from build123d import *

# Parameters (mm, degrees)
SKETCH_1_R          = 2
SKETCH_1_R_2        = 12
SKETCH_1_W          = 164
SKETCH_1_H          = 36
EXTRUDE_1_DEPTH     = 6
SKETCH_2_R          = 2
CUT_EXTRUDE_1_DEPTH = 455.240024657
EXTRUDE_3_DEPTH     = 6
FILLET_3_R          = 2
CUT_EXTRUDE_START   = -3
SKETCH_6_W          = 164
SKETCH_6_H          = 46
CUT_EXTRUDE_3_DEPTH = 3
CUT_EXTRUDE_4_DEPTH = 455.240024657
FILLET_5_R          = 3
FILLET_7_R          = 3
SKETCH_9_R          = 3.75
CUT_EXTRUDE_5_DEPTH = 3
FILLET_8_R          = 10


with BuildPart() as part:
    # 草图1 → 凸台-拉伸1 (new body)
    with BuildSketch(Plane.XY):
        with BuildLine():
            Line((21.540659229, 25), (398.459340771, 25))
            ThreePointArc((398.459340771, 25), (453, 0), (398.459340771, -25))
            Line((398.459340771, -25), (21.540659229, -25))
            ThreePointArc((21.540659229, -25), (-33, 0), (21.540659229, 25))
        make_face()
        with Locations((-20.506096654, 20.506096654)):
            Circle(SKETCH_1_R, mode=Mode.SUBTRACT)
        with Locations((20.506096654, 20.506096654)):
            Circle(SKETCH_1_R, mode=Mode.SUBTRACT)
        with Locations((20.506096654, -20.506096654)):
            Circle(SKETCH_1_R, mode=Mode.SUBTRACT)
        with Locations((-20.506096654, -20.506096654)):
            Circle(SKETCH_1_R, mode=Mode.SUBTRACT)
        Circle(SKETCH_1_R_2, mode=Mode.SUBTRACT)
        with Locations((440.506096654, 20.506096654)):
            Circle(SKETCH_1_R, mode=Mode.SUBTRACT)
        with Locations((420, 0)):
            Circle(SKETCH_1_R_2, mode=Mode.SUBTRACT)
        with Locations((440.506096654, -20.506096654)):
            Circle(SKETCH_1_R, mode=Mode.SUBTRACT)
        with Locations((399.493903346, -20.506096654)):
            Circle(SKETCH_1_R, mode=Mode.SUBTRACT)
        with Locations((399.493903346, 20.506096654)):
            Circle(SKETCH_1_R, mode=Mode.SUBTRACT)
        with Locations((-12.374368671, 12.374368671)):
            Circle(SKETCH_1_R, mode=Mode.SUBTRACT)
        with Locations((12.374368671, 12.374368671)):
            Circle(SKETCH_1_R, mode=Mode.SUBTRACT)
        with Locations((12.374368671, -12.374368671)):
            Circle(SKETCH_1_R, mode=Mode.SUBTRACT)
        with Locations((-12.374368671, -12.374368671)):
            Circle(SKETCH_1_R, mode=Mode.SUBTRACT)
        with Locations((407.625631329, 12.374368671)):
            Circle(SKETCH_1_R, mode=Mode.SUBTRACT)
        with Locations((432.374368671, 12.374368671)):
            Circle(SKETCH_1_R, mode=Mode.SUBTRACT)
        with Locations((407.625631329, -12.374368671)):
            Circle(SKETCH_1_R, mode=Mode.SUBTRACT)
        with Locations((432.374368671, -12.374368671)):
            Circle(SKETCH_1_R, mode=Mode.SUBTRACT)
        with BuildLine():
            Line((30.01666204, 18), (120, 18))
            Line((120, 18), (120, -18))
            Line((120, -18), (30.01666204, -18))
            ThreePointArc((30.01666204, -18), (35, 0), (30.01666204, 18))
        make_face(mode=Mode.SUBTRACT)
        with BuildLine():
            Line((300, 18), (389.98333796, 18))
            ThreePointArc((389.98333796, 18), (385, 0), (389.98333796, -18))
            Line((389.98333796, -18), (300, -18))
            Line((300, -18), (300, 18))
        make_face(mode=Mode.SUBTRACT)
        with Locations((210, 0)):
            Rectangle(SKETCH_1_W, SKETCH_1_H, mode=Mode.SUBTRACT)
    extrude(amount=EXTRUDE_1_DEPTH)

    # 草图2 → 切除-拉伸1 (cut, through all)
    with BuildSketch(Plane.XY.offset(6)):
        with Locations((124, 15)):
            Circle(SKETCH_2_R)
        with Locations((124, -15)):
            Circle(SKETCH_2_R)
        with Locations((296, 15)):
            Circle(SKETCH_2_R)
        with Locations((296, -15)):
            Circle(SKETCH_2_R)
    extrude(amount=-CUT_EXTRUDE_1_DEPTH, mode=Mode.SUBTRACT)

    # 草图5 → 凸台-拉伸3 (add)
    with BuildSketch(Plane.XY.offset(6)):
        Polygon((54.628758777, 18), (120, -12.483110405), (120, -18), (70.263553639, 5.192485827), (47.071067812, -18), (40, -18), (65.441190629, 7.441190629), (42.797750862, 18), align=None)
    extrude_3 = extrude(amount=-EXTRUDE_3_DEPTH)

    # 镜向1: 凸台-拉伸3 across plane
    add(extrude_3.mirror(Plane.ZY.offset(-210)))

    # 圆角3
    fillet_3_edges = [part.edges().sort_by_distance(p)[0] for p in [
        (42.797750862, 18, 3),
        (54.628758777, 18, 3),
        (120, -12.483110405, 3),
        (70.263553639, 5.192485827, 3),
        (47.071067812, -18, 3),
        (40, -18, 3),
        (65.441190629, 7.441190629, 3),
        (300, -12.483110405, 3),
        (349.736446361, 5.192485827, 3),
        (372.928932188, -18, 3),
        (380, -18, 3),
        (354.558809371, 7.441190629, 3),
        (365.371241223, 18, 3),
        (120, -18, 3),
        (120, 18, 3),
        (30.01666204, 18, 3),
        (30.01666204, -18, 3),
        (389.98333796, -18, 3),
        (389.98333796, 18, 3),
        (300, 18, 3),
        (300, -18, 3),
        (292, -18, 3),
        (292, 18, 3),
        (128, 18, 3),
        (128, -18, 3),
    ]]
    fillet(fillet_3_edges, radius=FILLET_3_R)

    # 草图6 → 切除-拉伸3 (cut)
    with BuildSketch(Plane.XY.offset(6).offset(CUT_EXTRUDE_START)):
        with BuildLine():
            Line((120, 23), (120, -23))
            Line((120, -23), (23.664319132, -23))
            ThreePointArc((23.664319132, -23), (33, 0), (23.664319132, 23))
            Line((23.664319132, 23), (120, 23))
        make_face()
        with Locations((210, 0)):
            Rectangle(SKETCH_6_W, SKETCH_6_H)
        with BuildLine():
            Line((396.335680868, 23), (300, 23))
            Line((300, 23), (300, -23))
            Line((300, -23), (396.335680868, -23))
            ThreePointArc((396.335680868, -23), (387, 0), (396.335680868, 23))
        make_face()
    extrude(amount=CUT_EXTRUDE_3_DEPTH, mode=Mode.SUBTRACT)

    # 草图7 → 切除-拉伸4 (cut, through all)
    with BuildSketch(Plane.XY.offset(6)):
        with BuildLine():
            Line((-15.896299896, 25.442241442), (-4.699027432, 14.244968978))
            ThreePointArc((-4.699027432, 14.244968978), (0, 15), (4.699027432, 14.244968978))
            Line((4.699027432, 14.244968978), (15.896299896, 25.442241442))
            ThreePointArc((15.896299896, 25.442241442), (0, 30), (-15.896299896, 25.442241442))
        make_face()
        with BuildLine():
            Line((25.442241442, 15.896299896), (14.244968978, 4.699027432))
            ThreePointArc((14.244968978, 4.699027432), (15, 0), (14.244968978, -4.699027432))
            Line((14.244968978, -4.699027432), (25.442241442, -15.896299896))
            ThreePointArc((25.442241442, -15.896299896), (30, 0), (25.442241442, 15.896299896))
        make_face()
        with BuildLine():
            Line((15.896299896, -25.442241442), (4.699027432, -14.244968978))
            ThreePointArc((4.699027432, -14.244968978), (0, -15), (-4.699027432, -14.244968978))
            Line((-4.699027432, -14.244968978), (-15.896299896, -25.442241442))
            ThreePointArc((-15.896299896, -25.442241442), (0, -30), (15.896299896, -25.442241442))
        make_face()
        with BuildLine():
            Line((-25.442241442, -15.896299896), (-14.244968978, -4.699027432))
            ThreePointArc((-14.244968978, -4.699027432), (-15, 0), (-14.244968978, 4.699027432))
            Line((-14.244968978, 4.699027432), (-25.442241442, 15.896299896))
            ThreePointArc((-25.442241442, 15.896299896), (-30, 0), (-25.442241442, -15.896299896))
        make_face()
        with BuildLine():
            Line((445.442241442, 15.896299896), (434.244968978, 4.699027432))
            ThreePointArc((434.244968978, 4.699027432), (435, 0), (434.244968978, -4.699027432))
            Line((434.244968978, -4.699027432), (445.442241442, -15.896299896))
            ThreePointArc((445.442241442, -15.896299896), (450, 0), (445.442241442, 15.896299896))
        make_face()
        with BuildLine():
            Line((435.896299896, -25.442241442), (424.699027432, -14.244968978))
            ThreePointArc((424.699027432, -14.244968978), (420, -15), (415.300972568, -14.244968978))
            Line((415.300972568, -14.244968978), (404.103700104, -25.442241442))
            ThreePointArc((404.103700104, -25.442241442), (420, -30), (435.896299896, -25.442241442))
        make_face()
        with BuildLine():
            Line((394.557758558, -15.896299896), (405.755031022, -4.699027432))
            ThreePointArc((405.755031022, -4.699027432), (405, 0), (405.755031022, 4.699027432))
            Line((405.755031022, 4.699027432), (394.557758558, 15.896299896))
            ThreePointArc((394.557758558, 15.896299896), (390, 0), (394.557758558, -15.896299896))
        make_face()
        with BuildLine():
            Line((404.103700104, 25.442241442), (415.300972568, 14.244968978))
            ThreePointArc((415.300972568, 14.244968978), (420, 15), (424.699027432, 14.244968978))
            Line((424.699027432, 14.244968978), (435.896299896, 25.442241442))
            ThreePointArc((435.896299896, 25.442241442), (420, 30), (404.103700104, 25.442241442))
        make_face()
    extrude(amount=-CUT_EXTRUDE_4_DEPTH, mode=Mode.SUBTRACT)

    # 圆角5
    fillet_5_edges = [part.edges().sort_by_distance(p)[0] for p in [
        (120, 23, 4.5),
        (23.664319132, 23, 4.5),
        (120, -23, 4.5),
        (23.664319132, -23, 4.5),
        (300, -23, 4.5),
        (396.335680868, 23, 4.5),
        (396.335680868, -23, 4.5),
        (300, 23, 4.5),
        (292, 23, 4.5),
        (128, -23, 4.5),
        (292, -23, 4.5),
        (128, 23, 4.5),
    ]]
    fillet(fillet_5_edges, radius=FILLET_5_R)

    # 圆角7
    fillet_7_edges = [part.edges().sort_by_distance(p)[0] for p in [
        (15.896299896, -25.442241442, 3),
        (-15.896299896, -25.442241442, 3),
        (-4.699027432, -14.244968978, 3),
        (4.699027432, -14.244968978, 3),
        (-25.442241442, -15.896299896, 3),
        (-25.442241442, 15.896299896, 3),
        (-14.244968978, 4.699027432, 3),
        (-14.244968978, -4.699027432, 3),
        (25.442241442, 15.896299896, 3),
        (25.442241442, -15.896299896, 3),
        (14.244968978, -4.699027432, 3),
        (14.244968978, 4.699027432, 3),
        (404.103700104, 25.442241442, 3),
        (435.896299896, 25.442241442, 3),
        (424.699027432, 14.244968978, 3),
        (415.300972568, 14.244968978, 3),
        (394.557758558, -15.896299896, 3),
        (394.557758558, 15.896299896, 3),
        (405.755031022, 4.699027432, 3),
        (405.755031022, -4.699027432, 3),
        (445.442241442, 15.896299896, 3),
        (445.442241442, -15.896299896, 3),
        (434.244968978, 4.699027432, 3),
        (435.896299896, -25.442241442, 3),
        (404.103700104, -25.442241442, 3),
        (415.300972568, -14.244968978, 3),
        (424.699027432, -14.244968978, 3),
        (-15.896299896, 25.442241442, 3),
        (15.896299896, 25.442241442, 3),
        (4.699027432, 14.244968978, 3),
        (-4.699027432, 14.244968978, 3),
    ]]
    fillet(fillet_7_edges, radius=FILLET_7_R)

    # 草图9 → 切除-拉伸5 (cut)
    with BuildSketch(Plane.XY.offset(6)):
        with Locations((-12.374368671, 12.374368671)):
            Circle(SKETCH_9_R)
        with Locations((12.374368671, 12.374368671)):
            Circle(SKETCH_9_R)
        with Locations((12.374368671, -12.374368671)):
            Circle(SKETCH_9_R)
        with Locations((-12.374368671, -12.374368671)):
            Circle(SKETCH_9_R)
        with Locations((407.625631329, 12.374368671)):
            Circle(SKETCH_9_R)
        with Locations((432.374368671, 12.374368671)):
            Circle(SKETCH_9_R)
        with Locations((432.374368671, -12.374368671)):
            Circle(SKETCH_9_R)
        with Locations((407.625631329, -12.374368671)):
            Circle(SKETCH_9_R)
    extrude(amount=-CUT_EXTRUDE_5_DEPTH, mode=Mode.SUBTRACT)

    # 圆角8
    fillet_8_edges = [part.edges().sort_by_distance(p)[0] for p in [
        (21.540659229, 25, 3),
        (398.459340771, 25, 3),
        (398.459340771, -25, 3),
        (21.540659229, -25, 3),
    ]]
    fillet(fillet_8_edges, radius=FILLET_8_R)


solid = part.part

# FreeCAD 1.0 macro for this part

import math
import FreeCAD as App
import Part
import Sketcher
Q = App.Units.Quantity


def edges_at(feature, points):
    """Names of the edges that pass closest to the given points."""
    edges = feature.Shape.Edges
    near = lambda p: min(range(len(edges)), key=lambda i: edges[i].distToShape(Part.Vertex(*p))[0])
    return sorted({f"Edge{near(p) + 1}" for p in points})


def add_polygon(sketch, points):
    """Adds a closed chain of lines whose ends are joined by coincident constraints."""
    first, n = sketch.GeometryCount, len(points)
    for a, b in zip(points, points[1:] + points[:1]):
        sketch.addGeometry(Part.LineSegment(App.Vector(*a, 0), App.Vector(*b, 0)), False)
    for i in range(n):
        sketch.addConstraint(Sketcher.Constraint("Coincident", first + i, 2, first + (i + 1) % n, 1))

doc = App.newDocument("Part")
body = doc.addObject("PartDesign::Body", "Body")

sketch1 = doc.addObject("Sketcher::SketchObject", "Sketch")
body.addObject(sketch1)
sketch1.AttachmentSupport = (doc.XY_Plane, [""])
sketch1.MapMode = "FlatFace"
sketch1.addGeometry(Part.LineSegment(App.Vector(398.5, 25, 0), App.Vector(21.5, 25, 0)), False)
sketch1.addGeometry(Part.ArcOfCircle(Part.Circle(App.Vector(0, 0, 0), App.Vector(0, 0, 1), 33), math.radians(49), math.radians(311)), False)
sketch1.addGeometry(Part.LineSegment(App.Vector(21.5, -25, 0), App.Vector(398.5, -25, 0)), False)
sketch1.addGeometry(Part.ArcOfCircle(Part.Circle(App.Vector(420, 0, 0), App.Vector(0, 0, 1), 33), math.radians(-131), math.radians(131)), False)
sketch1.addGeometry(Part.Circle(App.Vector(440.5, -20.5, 0), App.Vector(0, 0, 1), 2), False)
sketch1.addGeometry(Part.Circle(App.Vector(399.5, -20.5, 0), App.Vector(0, 0, 1), 2), False)
sketch1.addGeometry(Part.Circle(App.Vector(432.4, -12.4, 0), App.Vector(0, 0, 1), 2), False)
sketch1.addGeometry(Part.Circle(App.Vector(407.6, -12.4, 0), App.Vector(0, 0, 1), 2), False)
sketch1.addGeometry(Part.Circle(App.Vector(420, 0, 0), App.Vector(0, 0, 1), 12), False)
sketch1.addGeometry(Part.LineSegment(App.Vector(300, 18, 0), App.Vector(390, 18, 0)), False)
sketch1.addGeometry(Part.ArcOfCircle(Part.Circle(App.Vector(420, 0, 0), App.Vector(0, 0, 1), 35), math.radians(149), math.radians(211)), False)
sketch1.addGeometry(Part.LineSegment(App.Vector(390, -18, 0), App.Vector(300, -18, 0)), False)
sketch1.addGeometry(Part.LineSegment(App.Vector(300, -18, 0), App.Vector(300, 18, 0)), False)
sketch1.addGeometry(Part.Circle(App.Vector(20.5, -20.5, 0), App.Vector(0, 0, 1), 2), False)
sketch1.addGeometry(Part.Circle(App.Vector(-20.5, -20.5, 0), App.Vector(0, 0, 1), 2), False)
sketch1.addGeometry(Part.Circle(App.Vector(12.4, -12.4, 0), App.Vector(0, 0, 1), 2), False)
sketch1.addGeometry(Part.Circle(App.Vector(-12.4, -12.4, 0), App.Vector(0, 0, 1), 2), False)
sketch1.addGeometry(Part.Circle(App.Vector(0, 0, 0), App.Vector(0, 0, 1), 12), False)
sketch1.addGeometry(Part.Circle(App.Vector(432.4, 12.4, 0), App.Vector(0, 0, 1), 2), False)
sketch1.addGeometry(Part.Circle(App.Vector(407.6, 12.4, 0), App.Vector(0, 0, 1), 2), False)
sketch1.addGeometry(Part.Circle(App.Vector(440.5, 20.5, 0), App.Vector(0, 0, 1), 2), False)
sketch1.addGeometry(Part.Circle(App.Vector(399.5, 20.5, 0), App.Vector(0, 0, 1), 2), False)
add_polygon(sketch1, [(128, -18), (128, 18), (292, 18), (292, -18)])
sketch1.addGeometry(Part.LineSegment(App.Vector(30, 18, 0), App.Vector(120, 18, 0)), False)
sketch1.addGeometry(Part.LineSegment(App.Vector(120, 18, 0), App.Vector(120, -18, 0)), False)
sketch1.addGeometry(Part.LineSegment(App.Vector(120, -18, 0), App.Vector(30, -18, 0)), False)
sketch1.addGeometry(Part.ArcOfCircle(Part.Circle(App.Vector(0, 0, 0), App.Vector(0, 0, 1), 35), math.radians(-31), math.radians(31)), False)
sketch1.addGeometry(Part.Circle(App.Vector(12.4, 12.4, 0), App.Vector(0, 0, 1), 2), False)
sketch1.addGeometry(Part.Circle(App.Vector(-12.4, 12.4, 0), App.Vector(0, 0, 1), 2), False)
sketch1.addGeometry(Part.Circle(App.Vector(20.5, 20.5, 0), App.Vector(0, 0, 1), 2), False)
sketch1.addGeometry(Part.Circle(App.Vector(-20.5, 20.5, 0), App.Vector(0, 0, 1), 2), False)
sketch1.addConstraint(Sketcher.Constraint("Coincident", 0, 2, 1, 1))
sketch1.addConstraint(Sketcher.Constraint("Coincident", 1, 2, 2, 1))
sketch1.addConstraint(Sketcher.Constraint("Coincident", 2, 2, 3, 1))
sketch1.addConstraint(Sketcher.Constraint("Coincident", 3, 2, 0, 1))
sketch1.addConstraint(Sketcher.Constraint("Coincident", 9, 2, 10, 1))
sketch1.addConstraint(Sketcher.Constraint("Coincident", 10, 2, 11, 1))
sketch1.addConstraint(Sketcher.Constraint("Coincident", 11, 2, 12, 1))
sketch1.addConstraint(Sketcher.Constraint("Coincident", 12, 2, 9, 1))
sketch1.addConstraint(Sketcher.Constraint("Coincident", 26, 2, 27, 1))
sketch1.addConstraint(Sketcher.Constraint("Coincident", 27, 2, 28, 1))
sketch1.addConstraint(Sketcher.Constraint("Coincident", 28, 2, 29, 1))
sketch1.addConstraint(Sketcher.Constraint("Coincident", 29, 2, 26, 1))
sketch1.addConstraint(Sketcher.Constraint("Horizontal", 0))
sketch1.addConstraint(Sketcher.Constraint("Horizontal", 2))
sketch1.addConstraint(Sketcher.Constraint("Horizontal", 9))
sketch1.addConstraint(Sketcher.Constraint("Horizontal", 11))
sketch1.addConstraint(Sketcher.Constraint("Vertical", 12))
sketch1.addConstraint(Sketcher.Constraint("Vertical", 22))
sketch1.addConstraint(Sketcher.Constraint("Horizontal", 23))
sketch1.addConstraint(Sketcher.Constraint("Vertical", 24))
sketch1.addConstraint(Sketcher.Constraint("Horizontal", 25))
sketch1.addConstraint(Sketcher.Constraint("Horizontal", 26))
sketch1.addConstraint(Sketcher.Constraint("Vertical", 27))
sketch1.addConstraint(Sketcher.Constraint("Horizontal", 28))
sketch1.addConstraint(Sketcher.Constraint("Coincident", 1, 3, -1, 1))
sketch1.addConstraint(Sketcher.Constraint("Coincident", 17, 3, -1, 1))
sketch1.addConstraint(Sketcher.Constraint("Coincident", 29, 3, -1, 1))
sketch1.addConstraint(Sketcher.Constraint("Coincident", 8, 3, 3, 3))
sketch1.addConstraint(Sketcher.Constraint("Coincident", 10, 3, 3, 3))
sketch1.addConstraint(Sketcher.Constraint("Equal", 1, 3))
sketch1.addConstraint(Sketcher.Constraint("Equal", 4, 5))
sketch1.addConstraint(Sketcher.Constraint("Equal", 5, 6))
sketch1.addConstraint(Sketcher.Constraint("Equal", 6, 7))
sketch1.addConstraint(Sketcher.Constraint("Equal", 7, 13))
sketch1.addConstraint(Sketcher.Constraint("Equal", 13, 14))
sketch1.addConstraint(Sketcher.Constraint("Equal", 14, 15))
sketch1.addConstraint(Sketcher.Constraint("Equal", 15, 16))
sketch1.addConstraint(Sketcher.Constraint("Equal", 8, 17))
sketch1.addConstraint(Sketcher.Constraint("Equal", 16, 18))
sketch1.addConstraint(Sketcher.Constraint("Equal", 18, 19))
sketch1.addConstraint(Sketcher.Constraint("Equal", 19, 20))
sketch1.addConstraint(Sketcher.Constraint("Equal", 20, 21))
sketch1.addConstraint(Sketcher.Constraint("Equal", 10, 29))
sketch1.addConstraint(Sketcher.Constraint("Equal", 21, 30))
sketch1.addConstraint(Sketcher.Constraint("Equal", 30, 31))
sketch1.addConstraint(Sketcher.Constraint("Equal", 31, 32))
sketch1.addConstraint(Sketcher.Constraint("Equal", 32, 33))
sketch1.addConstraint(Sketcher.Constraint("Symmetric", 16, 3, 30, 3, -1, 1))
sketch1.addConstraint(Sketcher.Constraint("Symmetric", 15, 3, 31, 3, -1, 1))
sketch1.addConstraint(Sketcher.Constraint("Symmetric", 14, 3, 32, 3, -1, 1))
sketch1.addConstraint(Sketcher.Constraint("Symmetric", 13, 3, 33, 3, -1, 1))
sketch1.addConstraint(Sketcher.Constraint("Symmetric", 13, 3, 14, 3, -2))
sketch1.addConstraint(Sketcher.Constraint("Symmetric", 15, 3, 16, 3, -2))
sketch1.addConstraint(Sketcher.Constraint("Symmetric", 6, 3, 18, 3, -1))
sketch1.addConstraint(Sketcher.Constraint("Symmetric", 7, 3, 19, 3, -1))
sketch1.addConstraint(Sketcher.Constraint("Symmetric", 4, 3, 20, 3, -1))
sketch1.addConstraint(Sketcher.Constraint("Symmetric", 5, 3, 21, 3, -1))
sketch1.addConstraint(Sketcher.Constraint("Symmetric", 2, 2, 3, 2, -1))
sketch1.addConstraint(Sketcher.Constraint("Horizontal", 4, 3, 5, 3))
sketch1.addConstraint(Sketcher.Constraint("Horizontal", 6, 3, 7, 3))
sketch1.addConstraint(Sketcher.Constraint("Horizontal", 5, 3, 13, 3))
sketch1.addConstraint(Sketcher.Constraint("Horizontal", 7, 3, 15, 3))
sketch1.addConstraint(Sketcher.Constraint("Horizontal", 12, 2, 22, 2))
sketch1.addConstraint(Sketcher.Constraint("Horizontal", 11, 2, 24, 2))
sketch1.addConstraint(Sketcher.Constraint("Horizontal", 23, 2, 26, 2))
sketch1.addConstraint(Sketcher.Constraint("Horizontal", 25, 2, 27, 2))
sketch1.addConstraint(Sketcher.Constraint("Vertical", 9, 2, 10, 2))
sketch1.addConstraint(Sketcher.Constraint("Equal", 11, 26))
sketch1.addConstraint(Sketcher.Constraint("Diameter", 4, 4.0))
sketch1.addConstraint(Sketcher.Constraint("Diameter", 8, 24.0))
sketch1.addConstraint(Sketcher.Constraint("Radius", 1, 33.0))
sketch1.addConstraint(Sketcher.Constraint("Radius", 10, 35.0))
sketch1.addConstraint(Sketcher.Constraint("DistanceX", 23, 1, 23, 2, 164.0))
sketch1.addConstraint(Sketcher.Constraint("DistanceY", 12, 1, 12, 2, 36.0))
sketch1.addConstraint(Sketcher.Constraint("DistanceX", -1, 1, 3, 3, 420.0))
sketch1.addConstraint(Sketcher.Constraint("DistanceY", -1, 1, 0, 2, 25.0))
sketch1.addConstraint(Sketcher.Constraint("DistanceX", -1, 1, 11, 2, 300.0))
sketch1.addConstraint(Sketcher.Constraint("DistanceX", -1, 1, 22, 2, 128.0))
sketch1.addConstraint(Sketcher.Constraint("DistanceX", 14, 3, 5, 3, 420.0))
sketch1.addConstraint(Sketcher.Constraint("DistanceX", -1, 1, 6, 3, 432.374369))
sketch1.addConstraint(Sketcher.Constraint("DistanceY", 6, 3, -1, 1, 12.374369))
sketch1.addConstraint(Sketcher.Constraint("DistanceX", -1, 1, 7, 3, 407.625631))
sketch1.addConstraint(Sketcher.Constraint("DistanceX", -1, 1, 15, 3, 12.374369))
sketch1.addConstraint(Sketcher.Constraint("DistanceX", -1, 1, 4, 3, 440.506097))
sketch1.addConstraint(Sketcher.Constraint("DistanceY", 4, 3, -1, 1, 20.506097))
sketch1.addConstraint(Sketcher.Constraint("DistanceX", -1, 1, 5, 3, 399.493903))
pad1 = doc.addObject("PartDesign::Pad", "Pad")
body.addObject(pad1)
pad1.Profile = sketch1
pad1.Length = 6

sketch2 = doc.addObject("Sketcher::SketchObject", "Sketch001")
body.addObject(sketch2)
sketch2.AttachmentSupport = (doc.XY_Plane, [""])
sketch2.MapMode = "FlatFace"
sketch2.AttachmentOffset = App.Placement(App.Vector(0, 0, 6), App.Rotation())
sketch2.addGeometry(Part.Circle(App.Vector(124, 15, 0), App.Vector(0, 0, 1), 2), False)
sketch2.addGeometry(Part.Circle(App.Vector(124, -15, 0), App.Vector(0, 0, 1), 2), False)
sketch2.addGeometry(Part.Circle(App.Vector(296, 15, 0), App.Vector(0, 0, 1), 2), False)
sketch2.addGeometry(Part.Circle(App.Vector(296, -15, 0), App.Vector(0, 0, 1), 2), False)
sketch2.addConstraint(Sketcher.Constraint("Equal", 0, 1))
sketch2.addConstraint(Sketcher.Constraint("Equal", 1, 2))
sketch2.addConstraint(Sketcher.Constraint("Equal", 2, 3))
sketch2.addConstraint(Sketcher.Constraint("Symmetric", 0, 3, 1, 3, -1))
sketch2.addConstraint(Sketcher.Constraint("Symmetric", 2, 3, 3, 3, -1))
sketch2.addConstraint(Sketcher.Constraint("Horizontal", 0, 3, 2, 3))
sketch2.addConstraint(Sketcher.Constraint("Diameter", 0, 4.0))
sketch2.addConstraint(Sketcher.Constraint("DistanceX", -1, 1, 0, 3, 124.0))
sketch2.addConstraint(Sketcher.Constraint("DistanceY", -1, 1, 0, 3, 15.0))
sketch2.addConstraint(Sketcher.Constraint("DistanceX", -1, 1, 2, 3, 296.0))
pocket1 = doc.addObject("PartDesign::Pocket", "Pocket")
body.addObject(pocket1)
pocket1.Profile = sketch2
pocket1.Type = "ThroughAll"

sketch3 = doc.addObject("Sketcher::SketchObject", "Sketch002")
body.addObject(sketch3)
sketch3.AttachmentSupport = (doc.XY_Plane, [""])
sketch3.MapMode = "FlatFace"
sketch3.AttachmentOffset = App.Placement(App.Vector(0, 0, 6), App.Rotation())
add_polygon(sketch3, [(120, -12), (55, 18), (43, 18), (65, 7), (40, -18), (47, -18), (70, 5), (120, -18)])
sketch3.addConstraint(Sketcher.Constraint("Horizontal", 1))
sketch3.addConstraint(Sketcher.Constraint("Horizontal", 4))
sketch3.addConstraint(Sketcher.Constraint("Vertical", 7))
sketch3.addConstraint(Sketcher.Constraint("Parallel", 0, 2))
sketch3.addConstraint(Sketcher.Constraint("Parallel", 3, 5))
sketch3.addConstraint(Sketcher.Constraint("Parallel", 2, 6))
sketch3.addConstraint(Sketcher.Constraint("Horizontal", 4, 2, 6, 2))
sketch3.addConstraint(Sketcher.Constraint("Angle", 0, Q("155 deg")))
sketch3.addConstraint(Sketcher.Constraint("Angle", 3, Q("-135 deg")))
sketch3.addConstraint(Sketcher.Constraint("DistanceY", -1, 1, 0, 2, 18.0))
sketch3.addConstraint(Sketcher.Constraint("DistanceX", -1, 1, 3, 2, 40.0))
sketch3.addConstraint(Sketcher.Constraint("DistanceY", 3, 2, -1, 1, 18.0))
sketch3.addConstraint(Sketcher.Constraint("DistanceX", -1, 1, 6, 2, 120.0))
sketch3.addConstraint(Sketcher.Constraint("DistanceY", 7, 1, 7, 2, 5.51689))
sketch3.addConstraint(Sketcher.Constraint("DistanceY", 7, 2, 2, 2, 19.924301))
sketch3.addConstraint(Sketcher.Constraint("Distance", 5, 32.799128))
pad2 = doc.addObject("PartDesign::Pad", "Pad001")
body.addObject(pad2)
pad2.Profile = sketch3
pad2.Length = 6
pad2.Reversed = True
doc.recompute()

datumplane = doc.addObject("PartDesign::Plane", "DatumPlane")
body.addObject(datumplane)
datumplane.AttachmentSupport = (doc.YZ_Plane, [""])
datumplane.MapMode = "FlatFace"
datumplane.AttachmentOffset = App.Placement(App.Vector(0, 0, 210), App.Rotation())
mirrored = doc.addObject("PartDesign::Mirrored", "Mirrored")
body.addObject(mirrored)
mirrored.Originals = [pad2]
mirrored.MirrorPlane = (datumplane, [""])
body.Tip = mirrored
doc.recompute()

fillet = doc.addObject("PartDesign::Fillet", "Fillet")
body.addObject(fillet)
fillet.Base = (mirrored, edges_at(mirrored, [
    (42.798, 18, 3),
    (54.629, 18, 3),
    (120, -12.483, 3),
    (70.264, 5.192, 3),
    (47.071, -18, 3),
    (40, -18, 3),
    (65.441, 7.441, 3),
    (300, -12.483, 3),
    (349.736, 5.192, 3),
    (372.929, -18, 3),
    (380, -18, 3),
    (354.559, 7.441, 3),
    (365.371, 18, 3),
    (120, -18, 3),
    (120, 18, 3),
    (30.017, 18, 3),
    (30.017, -18, 3),
    (389.983, -18, 3),
    (389.983, 18, 3),
    (300, 18, 3),
    (300, -18, 3),
    (292, -18, 3),
    (292, 18, 3),
    (128, 18, 3),
    (128, -18, 3),
]))
fillet.Radius = 2

sketch4 = doc.addObject("Sketcher::SketchObject", "Sketch003")
body.addObject(sketch4)
sketch4.AttachmentSupport = (doc.XY_Plane, [""])
sketch4.MapMode = "FlatFace"
sketch4.AttachmentOffset = App.Placement(App.Vector(0, 0, 3), App.Rotation())
sketch4.addGeometry(Part.LineSegment(App.Vector(120, -23, 0), App.Vector(120, 23, 0)), False)
sketch4.addGeometry(Part.LineSegment(App.Vector(120, 23, 0), App.Vector(24, 23, 0)), False)
sketch4.addGeometry(Part.ArcOfCircle(Part.Circle(App.Vector(0, 0, 0), App.Vector(0, 0, 1), 33), math.radians(-44), math.radians(44)), False)
sketch4.addGeometry(Part.LineSegment(App.Vector(24, -23, 0), App.Vector(120, -23, 0)), False)
add_polygon(sketch4, [(128, 23), (128, -23), (292, -23), (292, 23)])
sketch4.addGeometry(Part.LineSegment(App.Vector(396, 23, 0), App.Vector(300, 23, 0)), False)
sketch4.addGeometry(Part.LineSegment(App.Vector(300, 23, 0), App.Vector(300, -23, 0)), False)
sketch4.addGeometry(Part.LineSegment(App.Vector(300, -23, 0), App.Vector(396, -23, 0)), False)
sketch4.addGeometry(Part.ArcOfCircle(Part.Circle(App.Vector(420, 0, 0), App.Vector(0, 0, 1), 33), math.radians(136), math.radians(224)), False)
sketch4.addConstraint(Sketcher.Constraint("Coincident", 0, 2, 1, 1))
sketch4.addConstraint(Sketcher.Constraint("Coincident", 1, 2, 2, 2))
sketch4.addConstraint(Sketcher.Constraint("Coincident", 2, 1, 3, 1))
sketch4.addConstraint(Sketcher.Constraint("Coincident", 3, 2, 0, 1))
sketch4.addConstraint(Sketcher.Constraint("Coincident", 8, 2, 9, 1))
sketch4.addConstraint(Sketcher.Constraint("Coincident", 9, 2, 10, 1))
sketch4.addConstraint(Sketcher.Constraint("Coincident", 10, 2, 11, 2))
sketch4.addConstraint(Sketcher.Constraint("Coincident", 11, 1, 8, 1))
sketch4.addConstraint(Sketcher.Constraint("Vertical", 0))
sketch4.addConstraint(Sketcher.Constraint("Horizontal", 1))
sketch4.addConstraint(Sketcher.Constraint("Horizontal", 3))
sketch4.addConstraint(Sketcher.Constraint("Vertical", 4))
sketch4.addConstraint(Sketcher.Constraint("Horizontal", 5))
sketch4.addConstraint(Sketcher.Constraint("Vertical", 6))
sketch4.addConstraint(Sketcher.Constraint("Horizontal", 7))
sketch4.addConstraint(Sketcher.Constraint("Horizontal", 8))
sketch4.addConstraint(Sketcher.Constraint("Vertical", 9))
sketch4.addConstraint(Sketcher.Constraint("Horizontal", 10))
sketch4.addConstraint(Sketcher.Constraint("Coincident", 2, 3, -1, 1))
sketch4.addConstraint(Sketcher.Constraint("Equal", 2, 11))
sketch4.addConstraint(Sketcher.Constraint("Symmetric", 10, 2, 11, 1, -1))
sketch4.addConstraint(Sketcher.Constraint("Horizontal", 3, 2, 4, 2))
sketch4.addConstraint(Sketcher.Constraint("Horizontal", 1, 2, 6, 2))
sketch4.addConstraint(Sketcher.Constraint("Horizontal", 7, 2, 8, 2))
sketch4.addConstraint(Sketcher.Constraint("Horizontal", 5, 2, 9, 2))
sketch4.addConstraint(Sketcher.Constraint("Equal", 3, 8))
sketch4.addConstraint(Sketcher.Constraint("Radius", 2, 33.0))
sketch4.addConstraint(Sketcher.Constraint("DistanceX", 5, 1, 5, 2, 164.0))
sketch4.addConstraint(Sketcher.Constraint("DistanceY", 0, 1, 0, 2, 46.0))
sketch4.addConstraint(Sketcher.Constraint("DistanceX", -1, 1, 11, 3, 420.0))
sketch4.addConstraint(Sketcher.Constraint("DistanceX", -1, 1, 0, 2, 120.0))
sketch4.addConstraint(Sketcher.Constraint("DistanceX", -1, 1, 4, 2, 128.0))
pocket2 = doc.addObject("PartDesign::Pocket", "Pocket001")
body.addObject(pocket2)
pocket2.Profile = sketch4
pocket2.Length = 3
pocket2.Reversed = True

sketch5 = doc.addObject("Sketcher::SketchObject", "Sketch004")
body.addObject(sketch5)
sketch5.AttachmentSupport = (doc.XY_Plane, [""])
sketch5.MapMode = "FlatFace"
sketch5.AttachmentOffset = App.Placement(App.Vector(0, 0, 6), App.Rotation())
sketch5.addGeometry(Part.LineSegment(App.Vector(-16, 25, 0), App.Vector(-5, 14, 0)), False)
sketch5.addGeometry(Part.ArcOfCircle(Part.Circle(App.Vector(0, 0, 0), App.Vector(0, 0, 1), 15), math.radians(72), math.radians(108)), False)
sketch5.addGeometry(Part.LineSegment(App.Vector(5, 14, 0), App.Vector(16, 25, 0)), False)
sketch5.addGeometry(Part.ArcOfCircle(Part.Circle(App.Vector(0, 0, 0), App.Vector(0, 0, 1), 30), math.radians(58), math.radians(122)), False)
sketch5.addGeometry(Part.LineSegment(App.Vector(25, 16, 0), App.Vector(14, 5, 0)), False)
sketch5.addGeometry(Part.ArcOfCircle(Part.Circle(App.Vector(0, 0, 0), App.Vector(0, 0, 1), 15), math.radians(-18), math.radians(18)), False)
sketch5.addGeometry(Part.LineSegment(App.Vector(14, -5, 0), App.Vector(25, -16, 0)), False)
sketch5.addGeometry(Part.ArcOfCircle(Part.Circle(App.Vector(0, 0, 0), App.Vector(0, 0, 1), 30), math.radians(-32), math.radians(32)), False)
sketch5.addGeometry(Part.LineSegment(App.Vector(16, -25, 0), App.Vector(5, -14, 0)), False)
sketch5.addGeometry(Part.ArcOfCircle(Part.Circle(App.Vector(0, 0, 0), App.Vector(0, 0, 1), 15), math.radians(-108), math.radians(-72)), False)
sketch5.addGeometry(Part.LineSegment(App.Vector(-5, -14, 0), App.Vector(-16, -25, 0)), False)
sketch5.addGeometry(Part.ArcOfCircle(Part.Circle(App.Vector(0, 0, 0), App.Vector(0, 0, 1), 30), math.radians(-122), math.radians(-58)), False)
sketch5.addGeometry(Part.LineSegment(App.Vector(-25, -16, 0), App.Vector(-14, -5, 0)), False)
sketch5.addGeometry(Part.ArcOfCircle(Part.Circle(App.Vector(0, 0, 0), App.Vector(0, 0, 1), 15), math.radians(162), math.radians(198)), False)
sketch5.addGeometry(Part.LineSegment(App.Vector(-14, 5, 0), App.Vector(-25, 16, 0)), False)
sketch5.addGeometry(Part.ArcOfCircle(Part.Circle(App.Vector(0, 0, 0), App.Vector(0, 0, 1), 30), math.radians(148), math.radians(212)), False)
sketch5.addGeometry(Part.LineSegment(App.Vector(445, 16, 0), App.Vector(434, 5, 0)), False)
sketch5.addGeometry(Part.ArcOfCircle(Part.Circle(App.Vector(420, 0, 0), App.Vector(0, 0, 1), 15), math.radians(-18), math.radians(18)), False)
sketch5.addGeometry(Part.LineSegment(App.Vector(434, -5, 0), App.Vector(445, -16, 0)), False)
sketch5.addGeometry(Part.ArcOfCircle(Part.Circle(App.Vector(420, 0, 0), App.Vector(0, 0, 1), 30), math.radians(-32), math.radians(32)), False)
sketch5.addGeometry(Part.LineSegment(App.Vector(436, -25, 0), App.Vector(425, -14, 0)), False)
sketch5.addGeometry(Part.ArcOfCircle(Part.Circle(App.Vector(420, 0, 0), App.Vector(0, 0, 1), 15), math.radians(-108), math.radians(-72)), False)
sketch5.addGeometry(Part.LineSegment(App.Vector(415, -14, 0), App.Vector(404, -25, 0)), False)
sketch5.addGeometry(Part.ArcOfCircle(Part.Circle(App.Vector(420, 0, 0), App.Vector(0, 0, 1), 30), math.radians(-122), math.radians(-58)), False)
sketch5.addGeometry(Part.LineSegment(App.Vector(395, -16, 0), App.Vector(406, -5, 0)), False)
sketch5.addGeometry(Part.ArcOfCircle(Part.Circle(App.Vector(420, 0, 0), App.Vector(0, 0, 1), 15), math.radians(162), math.radians(198)), False)
sketch5.addGeometry(Part.LineSegment(App.Vector(406, 5, 0), App.Vector(395, 16, 0)), False)
sketch5.addGeometry(Part.ArcOfCircle(Part.Circle(App.Vector(420, 0, 0), App.Vector(0, 0, 1), 30), math.radians(148), math.radians(212)), False)
sketch5.addGeometry(Part.LineSegment(App.Vector(404, 25, 0), App.Vector(415, 14, 0)), False)
sketch5.addGeometry(Part.ArcOfCircle(Part.Circle(App.Vector(420, 0, 0), App.Vector(0, 0, 1), 15), math.radians(72), math.radians(108)), False)
sketch5.addGeometry(Part.LineSegment(App.Vector(425, 14, 0), App.Vector(436, 25, 0)), False)
sketch5.addGeometry(Part.ArcOfCircle(Part.Circle(App.Vector(420, 0, 0), App.Vector(0, 0, 1), 30), math.radians(58), math.radians(122)), False)
sketch5.addConstraint(Sketcher.Constraint("Coincident", 0, 2, 1, 2))
sketch5.addConstraint(Sketcher.Constraint("Coincident", 1, 1, 2, 1))
sketch5.addConstraint(Sketcher.Constraint("Coincident", 2, 2, 3, 1))
sketch5.addConstraint(Sketcher.Constraint("Coincident", 3, 2, 0, 1))
sketch5.addConstraint(Sketcher.Constraint("Coincident", 4, 2, 5, 2))
sketch5.addConstraint(Sketcher.Constraint("Coincident", 5, 1, 6, 1))
sketch5.addConstraint(Sketcher.Constraint("Coincident", 6, 2, 7, 1))
sketch5.addConstraint(Sketcher.Constraint("Coincident", 7, 2, 4, 1))
sketch5.addConstraint(Sketcher.Constraint("Coincident", 8, 2, 9, 2))
sketch5.addConstraint(Sketcher.Constraint("Coincident", 9, 1, 10, 1))
sketch5.addConstraint(Sketcher.Constraint("Coincident", 10, 2, 11, 1))
sketch5.addConstraint(Sketcher.Constraint("Coincident", 11, 2, 8, 1))
sketch5.addConstraint(Sketcher.Constraint("Coincident", 12, 2, 13, 2))
sketch5.addConstraint(Sketcher.Constraint("Coincident", 13, 1, 14, 1))
sketch5.addConstraint(Sketcher.Constraint("Coincident", 14, 2, 15, 1))
sketch5.addConstraint(Sketcher.Constraint("Coincident", 15, 2, 12, 1))
sketch5.addConstraint(Sketcher.Constraint("Coincident", 16, 2, 17, 2))
sketch5.addConstraint(Sketcher.Constraint("Coincident", 17, 1, 18, 1))
sketch5.addConstraint(Sketcher.Constraint("Coincident", 18, 2, 19, 1))
sketch5.addConstraint(Sketcher.Constraint("Coincident", 19, 2, 16, 1))
sketch5.addConstraint(Sketcher.Constraint("Coincident", 20, 2, 21, 2))
sketch5.addConstraint(Sketcher.Constraint("Coincident", 21, 1, 22, 1))
sketch5.addConstraint(Sketcher.Constraint("Coincident", 22, 2, 23, 1))
sketch5.addConstraint(Sketcher.Constraint("Coincident", 23, 2, 20, 1))
sketch5.addConstraint(Sketcher.Constraint("Coincident", 24, 2, 25, 2))
sketch5.addConstraint(Sketcher.Constraint("Coincident", 25, 1, 26, 1))
sketch5.addConstraint(Sketcher.Constraint("Coincident", 26, 2, 27, 1))
sketch5.addConstraint(Sketcher.Constraint("Coincident", 27, 2, 24, 1))
sketch5.addConstraint(Sketcher.Constraint("Coincident", 28, 2, 29, 2))
sketch5.addConstraint(Sketcher.Constraint("Coincident", 29, 1, 30, 1))
sketch5.addConstraint(Sketcher.Constraint("Coincident", 30, 2, 31, 1))
sketch5.addConstraint(Sketcher.Constraint("Coincident", 31, 2, 28, 1))
sketch5.addConstraint(Sketcher.Constraint("Coincident", 1, 3, -1, 1))
sketch5.addConstraint(Sketcher.Constraint("Coincident", 3, 3, -1, 1))
sketch5.addConstraint(Sketcher.Constraint("Coincident", 5, 3, -1, 1))
sketch5.addConstraint(Sketcher.Constraint("Coincident", 7, 3, -1, 1))
sketch5.addConstraint(Sketcher.Constraint("Coincident", 9, 3, -1, 1))
sketch5.addConstraint(Sketcher.Constraint("Coincident", 11, 3, -1, 1))
sketch5.addConstraint(Sketcher.Constraint("Coincident", 13, 3, -1, 1))
sketch5.addConstraint(Sketcher.Constraint("Coincident", 15, 3, -1, 1))
sketch5.addConstraint(Sketcher.Constraint("Coincident", 19, 3, 17, 3))
sketch5.addConstraint(Sketcher.Constraint("Coincident", 21, 3, 17, 3))
sketch5.addConstraint(Sketcher.Constraint("Coincident", 23, 3, 17, 3))
sketch5.addConstraint(Sketcher.Constraint("Coincident", 25, 3, 17, 3))
sketch5.addConstraint(Sketcher.Constraint("Coincident", 27, 3, 17, 3))
sketch5.addConstraint(Sketcher.Constraint("Coincident", 29, 3, 17, 3))
sketch5.addConstraint(Sketcher.Constraint("Coincident", 31, 3, 17, 3))
sketch5.addConstraint(Sketcher.Constraint("Equal", 1, 5))
sketch5.addConstraint(Sketcher.Constraint("Equal", 3, 7))
sketch5.addConstraint(Sketcher.Constraint("Equal", 5, 9))
sketch5.addConstraint(Sketcher.Constraint("Equal", 7, 11))
sketch5.addConstraint(Sketcher.Constraint("Equal", 9, 13))
sketch5.addConstraint(Sketcher.Constraint("Equal", 11, 15))
sketch5.addConstraint(Sketcher.Constraint("Equal", 13, 17))
sketch5.addConstraint(Sketcher.Constraint("Equal", 15, 19))
sketch5.addConstraint(Sketcher.Constraint("Equal", 17, 21))
sketch5.addConstraint(Sketcher.Constraint("Equal", 19, 23))
sketch5.addConstraint(Sketcher.Constraint("Equal", 21, 25))
sketch5.addConstraint(Sketcher.Constraint("Equal", 23, 27))
sketch5.addConstraint(Sketcher.Constraint("Equal", 25, 29))
sketch5.addConstraint(Sketcher.Constraint("Equal", 27, 31))
sketch5.addConstraint(Sketcher.Constraint("Symmetric", 16, 2, 17, 1, -1))
sketch5.addConstraint(Sketcher.Constraint("Perpendicular", 0, 2))
sketch5.addConstraint(Sketcher.Constraint("Parallel", 2, 4))
sketch5.addConstraint(Sketcher.Constraint("Perpendicular", 4, 6))
sketch5.addConstraint(Sketcher.Constraint("Parallel", 6, 8))
sketch5.addConstraint(Sketcher.Constraint("Perpendicular", 8, 10))
sketch5.addConstraint(Sketcher.Constraint("Parallel", 10, 12))
sketch5.addConstraint(Sketcher.Constraint("Perpendicular", 12, 14))
sketch5.addConstraint(Sketcher.Constraint("Perpendicular", 14, 16))
sketch5.addConstraint(Sketcher.Constraint("Perpendicular", 16, 18))
sketch5.addConstraint(Sketcher.Constraint("Parallel", 18, 20))
sketch5.addConstraint(Sketcher.Constraint("Perpendicular", 20, 22))
sketch5.addConstraint(Sketcher.Constraint("Parallel", 22, 24))
sketch5.addConstraint(Sketcher.Constraint("Perpendicular", 24, 26))
sketch5.addConstraint(Sketcher.Constraint("Parallel", 26, 28))
sketch5.addConstraint(Sketcher.Constraint("Perpendicular", 28, 30))
sketch5.addConstraint(Sketcher.Constraint("Horizontal", 0, 2, 1, 1))
sketch5.addConstraint(Sketcher.Constraint("Horizontal", 2, 2, 3, 2))
sketch5.addConstraint(Sketcher.Constraint("Horizontal", 8, 2, 9, 1))
sketch5.addConstraint(Sketcher.Constraint("Horizontal", 5, 1, 12, 2))
sketch5.addConstraint(Sketcher.Constraint("Horizontal", 4, 2, 13, 1))
sketch5.addConstraint(Sketcher.Constraint("Horizontal", 13, 1, 16, 2))
sketch5.addConstraint(Sketcher.Constraint("Horizontal", 12, 2, 17, 1))
sketch5.addConstraint(Sketcher.Constraint("Horizontal", 9, 1, 20, 2))
sketch5.addConstraint(Sketcher.Constraint("Horizontal", 20, 2, 21, 1))
sketch5.addConstraint(Sketcher.Constraint("Horizontal", 17, 1, 24, 2))
sketch5.addConstraint(Sketcher.Constraint("Horizontal", 16, 2, 25, 1))
sketch5.addConstraint(Sketcher.Constraint("Horizontal", 1, 1, 28, 2))
sketch5.addConstraint(Sketcher.Constraint("Horizontal", 28, 2, 29, 1))
sketch5.addConstraint(Sketcher.Constraint("Vertical", 1, 1, 8, 2))
sketch5.addConstraint(Sketcher.Constraint("Equal", 2, 4))
sketch5.addConstraint(Sketcher.Constraint("Radius", 1, 15.0))
sketch5.addConstraint(Sketcher.Constraint("Radius", 3, 30.0))
sketch5.addConstraint(Sketcher.Constraint("DistanceX", -1, 1, 17, 3, 420.0))
sketch5.addConstraint(Sketcher.Constraint("DistanceX", -1, 1, 2, 2, 15.8963))
pocket3 = doc.addObject("PartDesign::Pocket", "Pocket002")
body.addObject(pocket3)
pocket3.Profile = sketch5
pocket3.Type = "ThroughAll"
doc.recompute()

fillet2 = doc.addObject("PartDesign::Fillet", "Fillet001")
body.addObject(fillet2)
fillet2.Base = (pocket3, edges_at(pocket3, [
    (120, 23, 4.5),
    (23.664, 23, 4.5),
    (120, -23, 4.5),
    (23.664, -23, 4.5),
    (300, -23, 4.5),
    (396.336, 23, 4.5),
    (396.336, -23, 4.5),
    (300, 23, 4.5),
    (292, 23, 4.5),
    (128, -23, 4.5),
    (292, -23, 4.5),
    (128, 23, 4.5),
]))
fillet2.Radius = 3
doc.recompute()

fillet3 = doc.addObject("PartDesign::Fillet", "Fillet002")
body.addObject(fillet3)
fillet3.Base = (fillet2, edges_at(fillet2, [
    (15.896, -25.442, 3),
    (-15.896, -25.442, 3),
    (-4.699, -14.245, 3),
    (4.699, -14.245, 3),
    (-25.442, -15.896, 3),
    (-25.442, 15.896, 3),
    (-14.245, 4.699, 3),
    (-14.245, -4.699, 3),
    (25.442, 15.896, 3),
    (25.442, -15.896, 3),
    (14.245, -4.699, 3),
    (14.245, 4.699, 3),
    (404.104, 25.442, 3),
    (435.896, 25.442, 3),
    (424.699, 14.245, 3),
    (415.301, 14.245, 3),
    (394.558, -15.896, 3),
    (394.558, 15.896, 3),
    (405.755, 4.699, 3),
    (405.755, -4.699, 3),
    (445.442, 15.896, 3),
    (445.442, -15.896, 3),
    (434.245, 4.699, 3),
    (435.896, -25.442, 3),
    (404.104, -25.442, 3),
    (415.301, -14.245, 3),
    (424.699, -14.245, 3),
    (-15.896, 25.442, 3),
    (15.896, 25.442, 3),
    (4.699, 14.245, 3),
    (-4.699, 14.245, 3),
]))
fillet3.Radius = 3

sketch6 = doc.addObject("Sketcher::SketchObject", "Sketch005")
body.addObject(sketch6)
sketch6.AttachmentSupport = (doc.XY_Plane, [""])
sketch6.MapMode = "FlatFace"
sketch6.AttachmentOffset = App.Placement(App.Vector(0, 0, 6), App.Rotation())
sketch6.addGeometry(Part.Circle(App.Vector(-12.4, 12.4, 0), App.Vector(0, 0, 1), 3.8), False)
sketch6.addGeometry(Part.Circle(App.Vector(12.4, 12.4, 0), App.Vector(0, 0, 1), 3.8), False)
sketch6.addGeometry(Part.Circle(App.Vector(12.4, -12.4, 0), App.Vector(0, 0, 1), 3.8), False)
sketch6.addGeometry(Part.Circle(App.Vector(-12.4, -12.4, 0), App.Vector(0, 0, 1), 3.8), False)
sketch6.addGeometry(Part.Circle(App.Vector(407.6, 12.4, 0), App.Vector(0, 0, 1), 3.8), False)
sketch6.addGeometry(Part.Circle(App.Vector(432.4, 12.4, 0), App.Vector(0, 0, 1), 3.8), False)
sketch6.addGeometry(Part.Circle(App.Vector(432.4, -12.4, 0), App.Vector(0, 0, 1), 3.8), False)
sketch6.addGeometry(Part.Circle(App.Vector(407.6, -12.4, 0), App.Vector(0, 0, 1), 3.8), False)
sketch6.addConstraint(Sketcher.Constraint("Equal", 0, 1))
sketch6.addConstraint(Sketcher.Constraint("Equal", 1, 2))
sketch6.addConstraint(Sketcher.Constraint("Equal", 2, 3))
sketch6.addConstraint(Sketcher.Constraint("Equal", 3, 4))
sketch6.addConstraint(Sketcher.Constraint("Equal", 4, 5))
sketch6.addConstraint(Sketcher.Constraint("Equal", 5, 6))
sketch6.addConstraint(Sketcher.Constraint("Equal", 6, 7))
sketch6.addConstraint(Sketcher.Constraint("Symmetric", 0, 3, 2, 3, -1, 1))
sketch6.addConstraint(Sketcher.Constraint("Symmetric", 1, 3, 3, 3, -1, 1))
sketch6.addConstraint(Sketcher.Constraint("Symmetric", 0, 3, 1, 3, -2))
sketch6.addConstraint(Sketcher.Constraint("Symmetric", 5, 3, 6, 3, -1))
sketch6.addConstraint(Sketcher.Constraint("Symmetric", 4, 3, 7, 3, -1))
sketch6.addConstraint(Sketcher.Constraint("Horizontal", 1, 3, 4, 3))
sketch6.addConstraint(Sketcher.Constraint("Horizontal", 4, 3, 5, 3))
sketch6.addConstraint(Sketcher.Constraint("Diameter", 0, 7.5))
sketch6.addConstraint(Sketcher.Constraint("DistanceX", 0, 3, 4, 3, 420.0))
sketch6.addConstraint(Sketcher.Constraint("DistanceX", 1, 3, 5, 3, 420.0))
sketch6.addConstraint(Sketcher.Constraint("DistanceX", 0, 3, -1, 1, 12.374369))
sketch6.addConstraint(Sketcher.Constraint("DistanceY", -1, 1, 0, 3, 12.374369))
pocket4 = doc.addObject("PartDesign::Pocket", "Pocket003")
body.addObject(pocket4)
pocket4.Profile = sketch6
pocket4.Length = 3
doc.recompute()

fillet4 = doc.addObject("PartDesign::Fillet", "Fillet003")
body.addObject(fillet4)
fillet4.Base = (pocket4, edges_at(pocket4, [
    (21.541, 25, 3),
    (398.459, 25, 3),
    (398.459, -25, 3),
    (21.541, -25, 3),
]))
fillet4.Radius = 10

doc.recompute()
